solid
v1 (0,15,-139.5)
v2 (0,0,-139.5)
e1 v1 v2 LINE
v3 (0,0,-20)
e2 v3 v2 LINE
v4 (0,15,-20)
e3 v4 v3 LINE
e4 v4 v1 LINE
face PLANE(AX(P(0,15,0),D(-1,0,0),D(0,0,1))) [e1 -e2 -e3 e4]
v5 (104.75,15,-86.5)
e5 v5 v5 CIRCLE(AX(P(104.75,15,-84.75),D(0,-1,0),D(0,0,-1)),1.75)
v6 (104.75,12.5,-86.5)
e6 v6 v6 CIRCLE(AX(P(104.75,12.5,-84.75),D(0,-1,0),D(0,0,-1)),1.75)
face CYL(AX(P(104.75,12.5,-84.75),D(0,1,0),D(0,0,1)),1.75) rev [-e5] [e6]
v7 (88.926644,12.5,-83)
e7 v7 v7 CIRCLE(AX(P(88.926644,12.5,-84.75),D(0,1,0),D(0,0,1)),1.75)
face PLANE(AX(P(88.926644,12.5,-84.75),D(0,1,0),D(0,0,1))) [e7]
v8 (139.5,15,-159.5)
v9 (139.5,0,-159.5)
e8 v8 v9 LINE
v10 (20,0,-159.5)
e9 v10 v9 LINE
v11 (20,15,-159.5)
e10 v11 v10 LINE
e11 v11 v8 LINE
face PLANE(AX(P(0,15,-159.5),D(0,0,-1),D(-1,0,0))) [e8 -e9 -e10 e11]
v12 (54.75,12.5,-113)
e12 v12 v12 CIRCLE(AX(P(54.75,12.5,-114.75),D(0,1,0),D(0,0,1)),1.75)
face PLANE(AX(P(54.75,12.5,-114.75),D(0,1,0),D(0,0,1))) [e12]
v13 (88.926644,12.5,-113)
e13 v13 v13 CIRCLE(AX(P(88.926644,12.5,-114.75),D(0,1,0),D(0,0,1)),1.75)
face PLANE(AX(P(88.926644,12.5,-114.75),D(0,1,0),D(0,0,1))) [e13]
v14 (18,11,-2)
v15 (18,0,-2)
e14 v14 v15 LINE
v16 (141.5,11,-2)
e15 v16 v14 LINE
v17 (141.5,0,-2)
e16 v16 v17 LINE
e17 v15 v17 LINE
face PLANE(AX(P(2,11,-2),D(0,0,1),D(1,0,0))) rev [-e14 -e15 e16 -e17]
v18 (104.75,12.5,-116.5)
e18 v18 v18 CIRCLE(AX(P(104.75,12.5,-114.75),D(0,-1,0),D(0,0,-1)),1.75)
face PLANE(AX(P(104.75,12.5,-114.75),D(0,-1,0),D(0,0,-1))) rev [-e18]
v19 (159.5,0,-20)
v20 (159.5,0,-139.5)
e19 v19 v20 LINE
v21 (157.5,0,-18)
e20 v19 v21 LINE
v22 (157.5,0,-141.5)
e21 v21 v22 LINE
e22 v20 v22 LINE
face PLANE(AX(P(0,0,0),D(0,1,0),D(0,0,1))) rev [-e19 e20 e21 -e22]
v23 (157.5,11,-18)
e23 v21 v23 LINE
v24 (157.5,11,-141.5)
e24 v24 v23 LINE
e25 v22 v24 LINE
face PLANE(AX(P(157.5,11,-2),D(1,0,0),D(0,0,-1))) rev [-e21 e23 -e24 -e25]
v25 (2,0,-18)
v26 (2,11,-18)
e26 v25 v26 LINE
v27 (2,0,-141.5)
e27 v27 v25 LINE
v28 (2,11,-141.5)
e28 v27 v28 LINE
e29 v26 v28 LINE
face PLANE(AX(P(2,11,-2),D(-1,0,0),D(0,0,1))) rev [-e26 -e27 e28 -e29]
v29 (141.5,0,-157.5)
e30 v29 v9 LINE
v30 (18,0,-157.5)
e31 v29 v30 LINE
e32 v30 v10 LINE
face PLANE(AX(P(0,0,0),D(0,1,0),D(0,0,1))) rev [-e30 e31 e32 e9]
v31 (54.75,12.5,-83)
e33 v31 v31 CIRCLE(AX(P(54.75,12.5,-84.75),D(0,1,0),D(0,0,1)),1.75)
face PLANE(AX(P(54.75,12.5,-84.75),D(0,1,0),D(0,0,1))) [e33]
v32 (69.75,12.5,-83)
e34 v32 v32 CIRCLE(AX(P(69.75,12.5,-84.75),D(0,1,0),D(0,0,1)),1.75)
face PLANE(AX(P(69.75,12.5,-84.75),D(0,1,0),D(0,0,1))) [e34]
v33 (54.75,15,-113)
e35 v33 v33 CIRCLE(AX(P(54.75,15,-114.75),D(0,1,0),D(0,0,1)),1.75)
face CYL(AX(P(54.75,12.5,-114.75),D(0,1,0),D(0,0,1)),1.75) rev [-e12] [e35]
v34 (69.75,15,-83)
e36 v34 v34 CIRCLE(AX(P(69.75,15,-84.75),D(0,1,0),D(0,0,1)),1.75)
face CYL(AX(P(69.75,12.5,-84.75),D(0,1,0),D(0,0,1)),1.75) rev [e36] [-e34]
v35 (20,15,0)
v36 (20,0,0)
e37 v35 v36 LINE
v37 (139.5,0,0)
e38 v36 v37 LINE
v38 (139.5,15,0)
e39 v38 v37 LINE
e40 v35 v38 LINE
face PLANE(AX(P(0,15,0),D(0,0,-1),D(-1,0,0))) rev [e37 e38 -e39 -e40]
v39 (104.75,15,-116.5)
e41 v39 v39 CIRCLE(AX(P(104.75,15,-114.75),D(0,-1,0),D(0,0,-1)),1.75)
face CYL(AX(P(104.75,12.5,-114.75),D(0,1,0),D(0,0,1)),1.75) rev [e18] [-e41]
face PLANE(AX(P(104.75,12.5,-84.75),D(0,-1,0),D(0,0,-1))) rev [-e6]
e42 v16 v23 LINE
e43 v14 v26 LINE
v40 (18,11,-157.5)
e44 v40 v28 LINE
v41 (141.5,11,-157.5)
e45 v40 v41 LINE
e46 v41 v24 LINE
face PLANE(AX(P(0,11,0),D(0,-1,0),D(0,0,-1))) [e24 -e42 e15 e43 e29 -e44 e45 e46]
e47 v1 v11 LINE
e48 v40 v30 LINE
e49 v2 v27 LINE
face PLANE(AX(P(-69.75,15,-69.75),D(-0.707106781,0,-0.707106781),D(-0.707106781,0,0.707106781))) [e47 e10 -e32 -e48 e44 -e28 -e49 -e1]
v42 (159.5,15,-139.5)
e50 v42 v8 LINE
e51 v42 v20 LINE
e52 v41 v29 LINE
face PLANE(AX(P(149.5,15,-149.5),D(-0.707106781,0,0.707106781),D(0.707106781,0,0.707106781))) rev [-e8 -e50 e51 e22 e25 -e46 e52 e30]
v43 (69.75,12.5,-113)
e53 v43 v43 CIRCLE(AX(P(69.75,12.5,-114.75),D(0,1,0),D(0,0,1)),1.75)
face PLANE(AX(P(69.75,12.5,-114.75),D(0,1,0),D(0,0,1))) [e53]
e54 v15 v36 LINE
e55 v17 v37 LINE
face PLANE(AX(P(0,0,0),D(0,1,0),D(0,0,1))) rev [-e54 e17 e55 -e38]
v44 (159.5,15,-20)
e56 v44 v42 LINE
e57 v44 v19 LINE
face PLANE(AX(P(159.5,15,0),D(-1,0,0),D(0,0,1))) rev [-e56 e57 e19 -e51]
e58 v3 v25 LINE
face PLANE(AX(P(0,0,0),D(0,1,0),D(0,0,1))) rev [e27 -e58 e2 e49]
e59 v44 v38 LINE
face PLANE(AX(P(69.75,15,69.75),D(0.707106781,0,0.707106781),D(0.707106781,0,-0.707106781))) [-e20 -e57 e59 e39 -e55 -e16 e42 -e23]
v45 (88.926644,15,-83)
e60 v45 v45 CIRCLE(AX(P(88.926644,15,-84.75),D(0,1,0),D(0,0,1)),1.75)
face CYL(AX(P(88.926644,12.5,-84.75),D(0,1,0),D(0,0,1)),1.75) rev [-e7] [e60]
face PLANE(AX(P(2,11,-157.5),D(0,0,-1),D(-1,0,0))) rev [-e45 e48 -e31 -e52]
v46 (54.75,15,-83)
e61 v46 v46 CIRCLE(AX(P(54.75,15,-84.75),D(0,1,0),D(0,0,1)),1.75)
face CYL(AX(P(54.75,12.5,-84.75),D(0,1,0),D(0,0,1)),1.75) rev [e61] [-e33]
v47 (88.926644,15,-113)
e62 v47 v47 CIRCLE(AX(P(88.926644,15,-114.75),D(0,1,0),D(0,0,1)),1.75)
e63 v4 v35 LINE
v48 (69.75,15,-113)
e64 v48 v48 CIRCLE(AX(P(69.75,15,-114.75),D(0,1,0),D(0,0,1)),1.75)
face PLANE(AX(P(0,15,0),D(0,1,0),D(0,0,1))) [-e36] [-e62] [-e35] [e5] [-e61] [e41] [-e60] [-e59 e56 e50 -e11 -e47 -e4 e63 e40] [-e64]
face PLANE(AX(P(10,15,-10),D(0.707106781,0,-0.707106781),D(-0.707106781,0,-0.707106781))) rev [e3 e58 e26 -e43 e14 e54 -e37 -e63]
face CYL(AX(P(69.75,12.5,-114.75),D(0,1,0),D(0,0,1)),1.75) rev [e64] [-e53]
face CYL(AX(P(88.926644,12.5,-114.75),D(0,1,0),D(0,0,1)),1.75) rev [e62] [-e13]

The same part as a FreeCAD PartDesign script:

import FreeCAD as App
import Part
import Sketcher


def add_polygon(sketch, points):
    """Adds a closed chain of lines whose ends are joined by coincident constraints."""
    first, n = sketch.GeometryCount, len(points)
    for a, b in zip(points, points[1:] + points[:1]):
        sketch.addGeometry(Part.LineSegment(App.Vector(*a, 0), App.Vector(*b, 0)), False)
    for i in range(n):
        sketch.addConstraint(Sketcher.Constraint("Coincident", first + i, 2, first + (i + 1) % n, 1))

doc = App.newDocument("Part")
body = doc.addObject("PartDesign::Body", "Body")

sketch1 = body.newObject("Sketcher::SketchObject", "Sketch")
sketch1.AttachmentSupport = (doc.getObject("XZ_Plane"), [""])
sketch1.MapMode = "FlatFace"
add_polygon(sketch1, [(20, -160), (0, -140), (0, -20), (20, 0), (140, 0), (160, -20), (160, -140), (140, -160)])
sketch1.addConstraint([
    Sketcher.Constraint("Vertical", 1),
    Sketcher.Constraint("Horizontal", 3),
    Sketcher.Constraint("Vertical", 5),
    Sketcher.Constraint("Horizontal", 7),
    Sketcher.Constraint("PointOnObject", 0, 2, -2),
    Sketcher.Constraint("PointOnObject", 2, 2, -1),
    Sketcher.Constraint("Perpendicular", 0, 2),
    Sketcher.Constraint("Perpendicular", 2, 4),
    Sketcher.Constraint("Perpendicular", 4, 6),
    Sketcher.Constraint("Horizontal", 1, 2, 4, 2),
    Sketcher.Constraint("Horizontal", 0, 2, 5, 2),
    Sketcher.Constraint("Vertical", 3, 2, 6, 2),
    Sketcher.Constraint("Vertical", 2, 2, 7, 2),
    Sketcher.Constraint("Equal", 7, 1),
    Sketcher.Constraint("DistanceX", 3, 1, 3, 2, 119.5),
    Sketcher.Constraint("DistanceY", 1, 2, -1, 1, 20.0),
])
pad1 = body.newObject("PartDesign::Pad", "Pad")
pad1.Profile = sketch1
pad1.Length = 15
pad1.Reversed = True

sketch2 = body.newObject("Sketcher::SketchObject", "Sketch001")
sketch2.AttachmentSupport = (doc.getObject("XZ_Plane"), [""])
sketch2.MapMode = "FlatFace"
add_polygon(sketch2, [(2, -2), (2, -158), (158, -158), (158, -2)])
sketch2.addConstraint([
    Sketcher.Constraint("Vertical", 0),
    Sketcher.Constraint("Horizontal", 1),
    Sketcher.Constraint("Vertical", 2),
    Sketcher.Constraint("Horizontal", 3),
    Sketcher.Constraint("Equal", 3, 0),
    Sketcher.Constraint("DistanceX", 1, 1, 1, 2, 155.5),
    Sketcher.Constraint("DistanceX", -1, 1, 0, 2, 2.0),
    Sketcher.Constraint("DistanceY", 2, 2, -1, 1, 2.0),
])
pocket1 = body.newObject("PartDesign::Pocket", "Pocket")
pocket1.Profile = sketch2
pocket1.Length = 11

sketch3 = body.newObject("Sketcher::SketchObject", "Sketch002")
sketch3.AttachmentSupport = (doc.getObject("XZ_Plane"), [""])
sketch3.MapMode = "FlatFace"
sketch3.AttachmentOffset = App.Placement(App.Vector(0, 0, -15), App.Rotation())
sketch3.addGeometry([
    Part.Circle(App.Vector(54.8, -114.8, 0), App.Vector(0, 0, 1), 1.8),
    Part.Circle(App.Vector(104.8, -114.8, 0), App.Vector(0, 0, 1), 1.8),
    Part.Circle(App.Vector(69.8, -114.8, 0), App.Vector(0, 0, 1), 1.8),
    Part.Circle(App.Vector(88.9, -114.8, 0), App.Vector(0, 0, 1), 1.8),
    Part.Circle(App.Vector(54.8, -84.8, 0), App.Vector(0, 0, 1), 1.8),
    Part.Circle(App.Vector(69.8, -84.8, 0), App.Vector(0, 0, 1), 1.8),
    Part.Circle(App.Vector(88.9, -84.8, 0), App.Vector(0, 0, 1), 1.8),
    Part.Circle(App.Vector(104.8, -84.8, 0), App.Vector(0, 0, 1), 1.8),
], False)
sketch3.addConstraint([
    Sketcher.Constraint("Equal", 0, 1),
    Sketcher.Constraint("Equal", 1, 2),
    Sketcher.Constraint("Equal", 2, 3),
    Sketcher.Constraint("Equal", 3, 4),
    Sketcher.Constraint("Equal", 4, 5),
    Sketcher.Constraint("Equal", 5, 6),
    Sketcher.Constraint("Equal", 6, 7),
    Sketcher.Constraint("Horizontal", 0, 3, 1, 3),
    Sketcher.Constraint("Horizontal", 1, 3, 2, 3),
    Sketcher.Constraint("Horizontal", 2, 3, 3, 3),
    Sketcher.Constraint("Horizontal", 4, 3, 5, 3),
    Sketcher.Constraint("Horizontal", 5, 3, 6, 3),
    Sketcher.Constraint("Horizontal", 6, 3, 7, 3),
    Sketcher.Constraint("Vertical", 0, 3, 4, 3),
    Sketcher.Constraint("Vertical", 2, 3, 5, 3),
    Sketcher.Constraint("Vertical", 3, 3, 6, 3),
    Sketcher.Constraint("Vertical", 1, 3, 7, 3),
    Sketcher.Constraint("Diameter", 0, 3.5),
    Sketcher.Constraint("DistanceX", 0, 3, 1, 3, 50.0),
    Sketcher.Constraint("DistanceX", 0, 3, 2, 3, 15.0),
    Sketcher.Constraint("DistanceY", 0, 3, 4, 3, 30.0),
    Sketcher.Constraint("DistanceX", -1, 1, 0, 3, 54.75),
    Sketcher.Constraint("DistanceY", 0, 3, -1, 1, 114.75),
    Sketcher.Constraint("DistanceX", -1, 1, 3, 3, 88.926644),
])
pocket2 = body.newObject("PartDesign::Pocket", "Pocket001")
pocket2.Profile = sketch3
pocket2.Length = 2.5
pocket2.Reversed = True

doc.recompute()
